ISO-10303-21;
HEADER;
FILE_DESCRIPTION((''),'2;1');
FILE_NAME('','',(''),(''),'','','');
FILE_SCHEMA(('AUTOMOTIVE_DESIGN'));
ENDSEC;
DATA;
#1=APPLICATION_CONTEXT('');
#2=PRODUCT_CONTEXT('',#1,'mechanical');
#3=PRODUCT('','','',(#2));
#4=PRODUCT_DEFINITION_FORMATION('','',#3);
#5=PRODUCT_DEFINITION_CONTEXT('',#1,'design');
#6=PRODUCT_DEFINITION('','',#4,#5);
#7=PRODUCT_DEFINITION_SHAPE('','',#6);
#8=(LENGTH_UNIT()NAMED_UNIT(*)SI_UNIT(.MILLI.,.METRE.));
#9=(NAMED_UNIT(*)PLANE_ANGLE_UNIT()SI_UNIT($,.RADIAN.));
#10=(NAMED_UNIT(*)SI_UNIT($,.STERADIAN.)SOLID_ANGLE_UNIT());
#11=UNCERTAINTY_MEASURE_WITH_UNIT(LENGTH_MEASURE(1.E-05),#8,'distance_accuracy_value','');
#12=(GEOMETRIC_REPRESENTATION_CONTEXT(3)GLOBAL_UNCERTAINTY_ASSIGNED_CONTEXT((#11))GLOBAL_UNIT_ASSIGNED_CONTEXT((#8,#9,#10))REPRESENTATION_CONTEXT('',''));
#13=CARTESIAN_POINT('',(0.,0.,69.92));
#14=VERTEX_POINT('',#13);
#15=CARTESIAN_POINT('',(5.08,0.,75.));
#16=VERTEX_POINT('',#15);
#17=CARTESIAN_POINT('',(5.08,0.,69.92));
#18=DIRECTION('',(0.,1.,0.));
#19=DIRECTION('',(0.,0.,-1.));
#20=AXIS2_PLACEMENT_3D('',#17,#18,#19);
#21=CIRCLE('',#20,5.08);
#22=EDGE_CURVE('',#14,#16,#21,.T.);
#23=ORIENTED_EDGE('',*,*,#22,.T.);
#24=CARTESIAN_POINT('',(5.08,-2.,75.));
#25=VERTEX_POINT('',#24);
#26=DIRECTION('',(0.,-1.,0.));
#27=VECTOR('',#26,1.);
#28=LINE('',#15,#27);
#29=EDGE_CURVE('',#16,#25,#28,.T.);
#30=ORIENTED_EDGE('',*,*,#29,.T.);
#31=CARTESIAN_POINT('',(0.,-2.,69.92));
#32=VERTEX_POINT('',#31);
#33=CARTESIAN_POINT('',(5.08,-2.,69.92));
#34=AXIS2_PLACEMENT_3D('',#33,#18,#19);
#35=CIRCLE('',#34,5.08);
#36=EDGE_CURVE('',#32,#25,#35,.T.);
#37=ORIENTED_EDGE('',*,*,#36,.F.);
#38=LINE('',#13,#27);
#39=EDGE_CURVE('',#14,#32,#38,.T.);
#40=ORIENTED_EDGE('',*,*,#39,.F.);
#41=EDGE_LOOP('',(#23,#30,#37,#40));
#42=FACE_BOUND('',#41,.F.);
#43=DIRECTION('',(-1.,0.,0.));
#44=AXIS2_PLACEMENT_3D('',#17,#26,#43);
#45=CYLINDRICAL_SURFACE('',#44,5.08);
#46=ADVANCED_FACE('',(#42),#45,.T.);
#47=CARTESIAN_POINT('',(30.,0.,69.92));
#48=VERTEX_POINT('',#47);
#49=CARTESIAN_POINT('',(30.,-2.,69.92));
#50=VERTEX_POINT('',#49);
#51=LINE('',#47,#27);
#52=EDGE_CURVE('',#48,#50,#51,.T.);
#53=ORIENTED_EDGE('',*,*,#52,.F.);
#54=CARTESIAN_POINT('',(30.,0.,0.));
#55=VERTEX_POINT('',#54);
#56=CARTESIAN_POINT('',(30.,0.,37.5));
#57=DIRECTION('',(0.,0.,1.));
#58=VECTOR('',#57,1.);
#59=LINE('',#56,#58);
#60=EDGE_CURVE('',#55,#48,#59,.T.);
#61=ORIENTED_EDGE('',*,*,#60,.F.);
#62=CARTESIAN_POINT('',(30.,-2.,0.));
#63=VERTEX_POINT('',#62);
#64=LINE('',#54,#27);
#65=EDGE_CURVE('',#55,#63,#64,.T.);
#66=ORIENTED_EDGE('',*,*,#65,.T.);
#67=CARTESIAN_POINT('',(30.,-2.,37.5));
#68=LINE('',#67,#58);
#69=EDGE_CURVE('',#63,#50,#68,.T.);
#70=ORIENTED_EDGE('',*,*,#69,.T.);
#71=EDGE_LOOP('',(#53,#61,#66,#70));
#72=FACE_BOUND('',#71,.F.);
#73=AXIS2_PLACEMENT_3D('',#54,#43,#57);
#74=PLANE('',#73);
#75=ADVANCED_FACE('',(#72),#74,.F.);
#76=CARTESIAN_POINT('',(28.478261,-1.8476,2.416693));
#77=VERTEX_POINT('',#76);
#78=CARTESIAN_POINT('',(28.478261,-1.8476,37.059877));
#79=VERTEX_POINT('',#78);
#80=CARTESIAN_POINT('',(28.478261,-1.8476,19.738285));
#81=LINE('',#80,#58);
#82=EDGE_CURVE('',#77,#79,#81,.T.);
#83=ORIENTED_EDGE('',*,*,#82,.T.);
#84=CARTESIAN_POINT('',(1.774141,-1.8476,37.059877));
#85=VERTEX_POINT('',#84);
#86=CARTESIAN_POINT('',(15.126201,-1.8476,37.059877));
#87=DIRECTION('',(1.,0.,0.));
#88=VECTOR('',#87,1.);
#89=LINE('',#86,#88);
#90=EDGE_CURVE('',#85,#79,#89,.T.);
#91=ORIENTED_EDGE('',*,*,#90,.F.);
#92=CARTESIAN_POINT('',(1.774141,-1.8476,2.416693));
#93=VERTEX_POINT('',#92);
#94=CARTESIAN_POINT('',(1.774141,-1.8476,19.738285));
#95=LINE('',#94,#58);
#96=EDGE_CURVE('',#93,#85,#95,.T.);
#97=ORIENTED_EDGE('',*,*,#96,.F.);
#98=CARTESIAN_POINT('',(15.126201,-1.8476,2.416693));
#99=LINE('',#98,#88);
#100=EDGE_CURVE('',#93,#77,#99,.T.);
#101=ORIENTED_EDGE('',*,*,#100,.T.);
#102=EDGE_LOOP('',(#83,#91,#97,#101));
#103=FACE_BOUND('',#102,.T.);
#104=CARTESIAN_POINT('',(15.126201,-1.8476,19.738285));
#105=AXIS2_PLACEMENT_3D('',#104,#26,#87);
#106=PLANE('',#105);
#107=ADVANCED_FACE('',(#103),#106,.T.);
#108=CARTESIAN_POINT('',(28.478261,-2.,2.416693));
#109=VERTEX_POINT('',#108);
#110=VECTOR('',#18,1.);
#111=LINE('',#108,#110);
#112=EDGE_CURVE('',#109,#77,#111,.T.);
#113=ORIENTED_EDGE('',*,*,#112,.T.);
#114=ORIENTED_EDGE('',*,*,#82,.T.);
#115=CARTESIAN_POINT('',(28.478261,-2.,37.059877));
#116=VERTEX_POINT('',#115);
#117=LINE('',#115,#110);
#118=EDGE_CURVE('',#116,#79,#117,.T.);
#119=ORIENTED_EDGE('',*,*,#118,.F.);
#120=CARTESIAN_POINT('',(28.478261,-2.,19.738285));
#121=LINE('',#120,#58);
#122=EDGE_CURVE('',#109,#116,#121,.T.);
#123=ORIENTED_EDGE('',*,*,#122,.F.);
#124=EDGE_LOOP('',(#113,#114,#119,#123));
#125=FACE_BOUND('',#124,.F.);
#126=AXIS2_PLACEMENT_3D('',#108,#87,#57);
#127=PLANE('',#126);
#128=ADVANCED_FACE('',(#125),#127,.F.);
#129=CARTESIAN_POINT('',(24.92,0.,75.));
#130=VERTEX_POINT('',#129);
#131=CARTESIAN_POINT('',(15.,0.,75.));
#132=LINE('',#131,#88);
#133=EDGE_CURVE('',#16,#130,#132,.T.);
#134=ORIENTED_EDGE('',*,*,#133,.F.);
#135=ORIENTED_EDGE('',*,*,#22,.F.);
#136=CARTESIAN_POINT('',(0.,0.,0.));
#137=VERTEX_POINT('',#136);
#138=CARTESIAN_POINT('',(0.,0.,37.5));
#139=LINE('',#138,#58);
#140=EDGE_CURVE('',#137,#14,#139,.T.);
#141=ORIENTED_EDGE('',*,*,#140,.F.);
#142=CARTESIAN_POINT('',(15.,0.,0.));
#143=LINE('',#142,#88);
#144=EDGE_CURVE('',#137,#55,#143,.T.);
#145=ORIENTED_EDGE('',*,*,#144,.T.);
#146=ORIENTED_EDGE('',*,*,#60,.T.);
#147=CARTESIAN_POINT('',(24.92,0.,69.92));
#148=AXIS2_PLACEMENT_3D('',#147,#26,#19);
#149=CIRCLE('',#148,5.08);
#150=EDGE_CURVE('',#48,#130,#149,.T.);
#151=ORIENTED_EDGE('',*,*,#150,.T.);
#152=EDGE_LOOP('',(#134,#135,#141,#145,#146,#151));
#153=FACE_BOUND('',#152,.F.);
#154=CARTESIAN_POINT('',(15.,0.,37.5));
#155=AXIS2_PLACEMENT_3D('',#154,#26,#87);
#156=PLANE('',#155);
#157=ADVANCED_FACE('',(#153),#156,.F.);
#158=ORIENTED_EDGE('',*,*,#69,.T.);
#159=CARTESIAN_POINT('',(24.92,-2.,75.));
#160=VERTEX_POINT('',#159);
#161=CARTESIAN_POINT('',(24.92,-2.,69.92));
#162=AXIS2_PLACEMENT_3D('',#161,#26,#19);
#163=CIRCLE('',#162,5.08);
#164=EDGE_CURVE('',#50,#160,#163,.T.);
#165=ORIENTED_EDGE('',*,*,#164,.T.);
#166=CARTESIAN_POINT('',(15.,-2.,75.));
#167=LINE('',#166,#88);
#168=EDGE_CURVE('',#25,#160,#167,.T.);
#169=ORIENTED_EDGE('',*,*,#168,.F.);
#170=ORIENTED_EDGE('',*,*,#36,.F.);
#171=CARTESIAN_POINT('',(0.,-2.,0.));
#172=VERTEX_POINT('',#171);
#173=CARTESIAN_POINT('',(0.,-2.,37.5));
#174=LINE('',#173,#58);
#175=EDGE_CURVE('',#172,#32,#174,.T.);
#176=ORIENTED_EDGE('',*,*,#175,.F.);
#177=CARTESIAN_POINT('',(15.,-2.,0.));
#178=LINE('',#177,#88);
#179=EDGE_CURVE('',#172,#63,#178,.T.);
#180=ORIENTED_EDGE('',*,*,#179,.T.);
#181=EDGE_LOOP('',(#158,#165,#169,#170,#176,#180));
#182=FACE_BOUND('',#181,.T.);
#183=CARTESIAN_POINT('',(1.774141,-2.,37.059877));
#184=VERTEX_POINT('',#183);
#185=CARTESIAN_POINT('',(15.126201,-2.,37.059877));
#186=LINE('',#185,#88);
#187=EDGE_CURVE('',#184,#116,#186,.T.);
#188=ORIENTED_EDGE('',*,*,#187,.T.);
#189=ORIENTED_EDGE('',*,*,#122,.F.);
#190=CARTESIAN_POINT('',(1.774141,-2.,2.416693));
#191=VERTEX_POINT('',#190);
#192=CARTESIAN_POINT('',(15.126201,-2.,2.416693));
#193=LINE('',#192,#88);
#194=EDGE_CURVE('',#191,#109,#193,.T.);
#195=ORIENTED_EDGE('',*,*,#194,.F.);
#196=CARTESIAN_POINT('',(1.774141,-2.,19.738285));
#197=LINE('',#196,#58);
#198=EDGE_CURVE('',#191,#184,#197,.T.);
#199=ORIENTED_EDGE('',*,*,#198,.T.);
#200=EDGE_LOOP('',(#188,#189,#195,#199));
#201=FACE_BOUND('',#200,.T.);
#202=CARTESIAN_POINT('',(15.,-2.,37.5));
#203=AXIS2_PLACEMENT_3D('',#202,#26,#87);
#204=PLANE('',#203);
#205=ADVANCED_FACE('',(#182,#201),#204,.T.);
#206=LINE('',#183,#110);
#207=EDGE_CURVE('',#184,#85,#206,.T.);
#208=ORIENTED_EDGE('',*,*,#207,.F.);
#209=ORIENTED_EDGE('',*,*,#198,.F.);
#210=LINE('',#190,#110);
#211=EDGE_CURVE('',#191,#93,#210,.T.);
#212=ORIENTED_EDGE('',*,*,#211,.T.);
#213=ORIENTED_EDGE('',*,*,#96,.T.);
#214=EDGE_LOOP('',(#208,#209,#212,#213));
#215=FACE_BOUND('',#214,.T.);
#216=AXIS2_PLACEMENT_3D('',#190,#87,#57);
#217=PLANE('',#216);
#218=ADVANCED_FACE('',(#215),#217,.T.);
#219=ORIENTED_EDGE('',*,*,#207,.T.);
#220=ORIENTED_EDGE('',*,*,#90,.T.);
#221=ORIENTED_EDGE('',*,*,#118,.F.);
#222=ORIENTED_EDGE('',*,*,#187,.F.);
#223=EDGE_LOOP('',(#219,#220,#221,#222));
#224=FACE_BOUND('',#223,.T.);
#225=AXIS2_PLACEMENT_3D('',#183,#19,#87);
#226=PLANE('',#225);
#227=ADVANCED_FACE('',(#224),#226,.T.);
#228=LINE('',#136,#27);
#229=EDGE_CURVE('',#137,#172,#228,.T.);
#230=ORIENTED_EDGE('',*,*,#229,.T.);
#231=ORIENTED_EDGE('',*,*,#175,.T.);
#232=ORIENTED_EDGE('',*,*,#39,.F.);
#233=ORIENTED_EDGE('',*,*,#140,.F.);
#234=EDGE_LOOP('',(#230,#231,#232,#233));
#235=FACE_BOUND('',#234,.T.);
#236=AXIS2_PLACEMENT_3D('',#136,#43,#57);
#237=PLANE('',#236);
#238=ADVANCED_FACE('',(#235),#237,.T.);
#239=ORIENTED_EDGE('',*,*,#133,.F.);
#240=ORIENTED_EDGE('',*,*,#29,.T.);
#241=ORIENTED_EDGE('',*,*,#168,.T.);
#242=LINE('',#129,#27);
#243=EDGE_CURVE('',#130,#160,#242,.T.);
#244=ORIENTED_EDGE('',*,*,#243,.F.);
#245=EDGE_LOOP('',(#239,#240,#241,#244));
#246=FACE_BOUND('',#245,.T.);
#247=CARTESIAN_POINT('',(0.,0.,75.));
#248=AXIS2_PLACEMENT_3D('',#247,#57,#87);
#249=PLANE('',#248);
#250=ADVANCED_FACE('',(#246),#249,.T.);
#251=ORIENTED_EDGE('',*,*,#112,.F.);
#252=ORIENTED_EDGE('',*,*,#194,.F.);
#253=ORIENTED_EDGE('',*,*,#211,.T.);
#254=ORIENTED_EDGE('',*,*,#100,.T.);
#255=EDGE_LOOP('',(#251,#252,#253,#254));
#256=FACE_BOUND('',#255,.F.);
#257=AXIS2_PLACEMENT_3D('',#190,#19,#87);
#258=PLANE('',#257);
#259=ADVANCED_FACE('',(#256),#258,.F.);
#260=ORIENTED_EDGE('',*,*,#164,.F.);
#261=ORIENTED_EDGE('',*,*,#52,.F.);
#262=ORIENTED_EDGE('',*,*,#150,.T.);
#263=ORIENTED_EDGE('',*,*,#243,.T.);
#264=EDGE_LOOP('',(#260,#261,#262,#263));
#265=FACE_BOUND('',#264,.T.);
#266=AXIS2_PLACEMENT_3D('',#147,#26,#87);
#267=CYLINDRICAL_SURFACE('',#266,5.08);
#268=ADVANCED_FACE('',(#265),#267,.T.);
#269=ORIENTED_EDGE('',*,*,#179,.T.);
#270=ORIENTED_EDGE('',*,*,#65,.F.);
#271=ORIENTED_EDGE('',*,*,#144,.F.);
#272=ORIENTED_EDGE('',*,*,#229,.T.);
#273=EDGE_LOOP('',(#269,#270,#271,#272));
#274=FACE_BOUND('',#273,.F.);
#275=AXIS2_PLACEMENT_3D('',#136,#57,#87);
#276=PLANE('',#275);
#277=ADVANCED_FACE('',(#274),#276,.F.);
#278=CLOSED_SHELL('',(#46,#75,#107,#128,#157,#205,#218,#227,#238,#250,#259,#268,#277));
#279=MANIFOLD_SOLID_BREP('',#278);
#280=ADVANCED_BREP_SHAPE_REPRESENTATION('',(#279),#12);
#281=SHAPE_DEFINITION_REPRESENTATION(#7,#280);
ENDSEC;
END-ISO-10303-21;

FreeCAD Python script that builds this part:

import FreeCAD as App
import Part
import Sketcher
from FreeCAD import Vector


def edges_at(feature, points):
    """Names of the edges that pass closest to the given points."""
    edges = feature.Shape.Edges
    near = lambda p: min(range(len(edges)), key=lambda i: edges[i].distToShape(Part.Vertex(*p))[0])
    return sorted({f"Edge{near(p) + 1}" for p in points})

doc = App.newDocument("Part")
body = doc.addObject("PartDesign::Body", "Body")

sketch1 = body.newObject("Sketcher::SketchObject", "Sketch")
sketch1.AttachmentSupport = (doc.getObject("XZ_Plane"), [""])
sketch1.MapMode = "FlatFace"
sketch1.addGeometry(Part.LineSegment(Vector(0, 75, 0), Vector(0, 0, 0)), False)
sketch1.addGeometry(Part.LineSegment(Vector(0, 0, 0), Vector(30, 0, 0)), False)
sketch1.addGeometry(Part.LineSegment(Vector(30, 0, 0), Vector(30, 75, 0)), False)
sketch1.addGeometry(Part.LineSegment(Vector(30, 75, 0), Vector(0, 75, 0)), False)
sketch1.addConstraint(Sketcher.Constraint("Coincident", 0, 2, 1, 1))
sketch1.addConstraint(Sketcher.Constraint("Coincident", 1, 2, 2, 1))
sketch1.addConstraint(Sketcher.Constraint("Coincident", 2, 2, 3, 1))
sketch1.addConstraint(Sketcher.Constraint("Coincident", 3, 2, 0, 1))
sketch1.addConstraint(Sketcher.Constraint("Vertical", 0))
sketch1.addConstraint(Sketcher.Constraint("Horizontal", 1))
sketch1.addConstraint(Sketcher.Constraint("Vertical", 2))
sketch1.addConstraint(Sketcher.Constraint("Horizontal", 3))
sketch1.addConstraint(Sketcher.Constraint("Coincident", 0, 2, -1, 1))
sketch1.addConstraint(Sketcher.Constraint("DistanceX", 1, 1, 1, 2, 30.0))
sketch1.addConstraint(Sketcher.Constraint("DistanceY", 0, 2, 0, 1, 75.0))
pad1 = body.newObject("PartDesign::Pad", "Pad")
pad1.Profile = sketch1
pad1.Length = 2
doc.recompute()

fillet = body.newObject("PartDesign::Fillet", "Fillet")
fillet.Base = (pad1, edges_at(pad1, [(30, -1, 75), (0, -1, 75)]))
fillet.Radius = 5.08

sketch2 = body.newObject("Sketcher::SketchObject", "Sketch001")
sketch2.AttachmentSupport = (doc.getObject("XZ_Plane"), [""])
sketch2.MapMode = "FlatFace"
sketch2.AttachmentOffset = App.Placement(Vector(0, 0, 2), App.Rotation())
sketch2.addGeometry(Part.LineSegment(Vector(1.774141, 37.059877, 0), Vector(1.774141, 2.416693, 0)), False)
sketch2.addGeometry(Part.LineSegment(Vector(1.774141, 2.416693, 0), Vector(28.478261, 2.416693, 0)), False)
sketch2.addGeometry(Part.LineSegment(Vector(28.478261, 2.416693, 0), Vector(28.478261, 37.059877, 0)), False)
sketch2.addGeometry(Part.LineSegment(Vector(28.478261, 37.059877, 0), Vector(1.774141, 37.059877, 0)), False)
sketch2.addConstraint(Sketcher.Constraint("Coincident", 0, 2, 1, 1))
sketch2.addConstraint(Sketcher.Constraint("Coincident", 1, 2, 2, 1))
sketch2.addConstraint(Sketcher.Constraint("Coincident", 2, 2, 3, 1))
sketch2.addConstraint(Sketcher.Constraint("Coincident", 3, 2, 0, 1))
sketch2.addConstraint(Sketcher.Constraint("Vertical", 0))
sketch2.addConstraint(Sketcher.Constraint("Horizontal", 1))
sketch2.addConstraint(Sketcher.Constraint("Vertical", 2))
sketch2.addConstraint(Sketcher.Constraint("Horizontal", 3))
sketch2.addConstraint(Sketcher.Constraint("DistanceX", 1, 1, 1, 2, 26.70412))
sketch2.addConstraint(Sketcher.Constraint("DistanceY", 0, 2, 0, 1, 34.643184))
sketch2.addConstraint(Sketcher.Constraint("DistanceX", -1, 1, 0, 2, 1.774141))
sketch2.addConstraint(Sketcher.Constraint("DistanceY", -1, 1, 0, 2, 2.416693))
pocket1 = body.newObject("PartDesign::Pocket", "Pocket")
pocket1.Profile = sketch2
pocket1.Length = 0.1524

doc.recompute()
